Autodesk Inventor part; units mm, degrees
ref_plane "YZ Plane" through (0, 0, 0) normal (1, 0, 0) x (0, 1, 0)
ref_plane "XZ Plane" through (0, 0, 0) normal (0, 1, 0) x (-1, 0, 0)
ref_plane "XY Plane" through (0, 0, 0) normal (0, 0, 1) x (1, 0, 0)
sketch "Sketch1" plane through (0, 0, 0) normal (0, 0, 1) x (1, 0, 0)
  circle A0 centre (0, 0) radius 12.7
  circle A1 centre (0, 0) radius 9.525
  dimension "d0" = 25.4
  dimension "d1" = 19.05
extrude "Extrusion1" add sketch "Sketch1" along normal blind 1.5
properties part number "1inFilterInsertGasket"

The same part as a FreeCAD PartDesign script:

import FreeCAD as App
import Part
import Sketcher
Q = App.Units.Quantity

doc = App.newDocument("Part")
body = doc.addObject("PartDesign::Body", "Body")

# Sketch on XY plane
sketch1 = doc.addObject("Sketcher::SketchObject", "Sketch")
body.addObject(sketch1)
sketch1.AttachmentSupport = (doc.XY_Plane, [""])
sketch1.MapMode = "FlatFace"
sketch1.addGeometry([
    Part.Circle(App.Vector(0, 0, 0), App.Vector(0, 0, 1), 12.7),
    Part.Circle(App.Vector(0, 0, 0), App.Vector(0, 0, 1), 9.525),
], False)
sketch1.addConstraint([
    Sketcher.Constraint("Coincident", 0, 3, -1, 1),
    Sketcher.Constraint("Coincident", 1, 3, -1, 1),
    Sketcher.Constraint("Diameter", 0, Q("1 in")),
    Sketcher.Constraint("Diameter", 1, Q("0.75 in")),
])
pad1 = doc.addObject("PartDesign::Pad", "Pad")
body.addObject(pad1)
pad1.Profile = sketch1
pad1.Length = 1.5

doc.recompute()
